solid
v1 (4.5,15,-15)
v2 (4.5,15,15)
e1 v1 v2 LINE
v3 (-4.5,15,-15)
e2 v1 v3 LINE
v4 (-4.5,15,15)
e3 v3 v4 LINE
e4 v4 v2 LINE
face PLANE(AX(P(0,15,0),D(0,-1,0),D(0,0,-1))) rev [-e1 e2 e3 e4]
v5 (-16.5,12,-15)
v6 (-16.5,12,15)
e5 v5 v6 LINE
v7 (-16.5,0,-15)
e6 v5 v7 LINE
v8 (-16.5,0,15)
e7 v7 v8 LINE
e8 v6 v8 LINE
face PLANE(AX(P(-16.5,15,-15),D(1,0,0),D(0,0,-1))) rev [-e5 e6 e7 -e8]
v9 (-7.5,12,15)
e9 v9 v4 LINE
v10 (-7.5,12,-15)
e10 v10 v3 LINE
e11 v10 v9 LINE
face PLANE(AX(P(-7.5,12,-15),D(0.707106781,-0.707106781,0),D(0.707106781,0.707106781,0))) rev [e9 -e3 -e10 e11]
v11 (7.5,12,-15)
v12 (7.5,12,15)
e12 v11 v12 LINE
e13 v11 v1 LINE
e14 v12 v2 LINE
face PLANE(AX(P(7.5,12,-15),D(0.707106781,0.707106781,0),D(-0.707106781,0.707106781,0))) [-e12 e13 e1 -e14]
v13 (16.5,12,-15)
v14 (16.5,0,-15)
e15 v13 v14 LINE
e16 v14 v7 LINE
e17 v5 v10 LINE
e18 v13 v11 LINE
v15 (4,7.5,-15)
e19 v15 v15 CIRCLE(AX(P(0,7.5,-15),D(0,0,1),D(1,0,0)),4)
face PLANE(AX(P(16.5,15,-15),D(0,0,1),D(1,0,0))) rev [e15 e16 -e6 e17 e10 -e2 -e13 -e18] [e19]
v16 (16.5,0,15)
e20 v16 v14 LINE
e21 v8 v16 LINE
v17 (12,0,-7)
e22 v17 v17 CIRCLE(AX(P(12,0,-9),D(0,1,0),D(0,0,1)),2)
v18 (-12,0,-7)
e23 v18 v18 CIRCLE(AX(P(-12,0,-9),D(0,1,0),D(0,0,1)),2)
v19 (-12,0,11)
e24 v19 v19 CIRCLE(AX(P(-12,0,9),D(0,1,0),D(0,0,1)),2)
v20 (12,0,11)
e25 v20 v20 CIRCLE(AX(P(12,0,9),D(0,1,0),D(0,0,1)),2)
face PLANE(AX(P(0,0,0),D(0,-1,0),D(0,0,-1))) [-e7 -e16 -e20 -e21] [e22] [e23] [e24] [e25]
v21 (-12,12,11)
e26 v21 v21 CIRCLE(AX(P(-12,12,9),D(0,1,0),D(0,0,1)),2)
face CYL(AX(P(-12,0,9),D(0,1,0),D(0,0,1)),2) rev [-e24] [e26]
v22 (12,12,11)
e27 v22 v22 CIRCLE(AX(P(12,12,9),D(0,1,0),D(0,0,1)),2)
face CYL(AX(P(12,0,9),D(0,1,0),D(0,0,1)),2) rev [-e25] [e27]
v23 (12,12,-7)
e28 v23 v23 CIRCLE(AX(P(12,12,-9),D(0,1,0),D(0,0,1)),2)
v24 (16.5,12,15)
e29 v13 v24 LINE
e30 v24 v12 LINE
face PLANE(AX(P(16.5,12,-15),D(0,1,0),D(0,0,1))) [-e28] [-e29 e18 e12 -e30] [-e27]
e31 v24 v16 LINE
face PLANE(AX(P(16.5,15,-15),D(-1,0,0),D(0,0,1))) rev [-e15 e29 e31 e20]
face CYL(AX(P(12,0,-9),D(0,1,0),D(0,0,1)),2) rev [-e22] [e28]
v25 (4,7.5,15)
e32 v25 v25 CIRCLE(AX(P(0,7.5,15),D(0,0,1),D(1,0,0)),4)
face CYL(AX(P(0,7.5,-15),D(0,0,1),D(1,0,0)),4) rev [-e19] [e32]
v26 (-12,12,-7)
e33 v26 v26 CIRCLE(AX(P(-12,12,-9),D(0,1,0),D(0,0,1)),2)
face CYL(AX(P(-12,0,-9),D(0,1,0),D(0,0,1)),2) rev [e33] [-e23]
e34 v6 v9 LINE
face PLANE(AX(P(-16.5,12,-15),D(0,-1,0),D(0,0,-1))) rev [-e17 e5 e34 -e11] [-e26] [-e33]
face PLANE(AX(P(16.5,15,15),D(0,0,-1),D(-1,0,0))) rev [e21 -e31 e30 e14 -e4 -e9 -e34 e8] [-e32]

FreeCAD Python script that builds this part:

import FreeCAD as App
import Part
import Sketcher

V = App.Vector
Q = App.Units.Quantity


def add_polygon(sketch, points):
    """Adds a closed chain of lines whose ends are joined by coincident constraints."""
    first, n = sketch.GeometryCount, len(points)
    for a, b in zip(points, points[1:] + points[:1]):
        sketch.addGeometry(Part.LineSegment(App.Vector(*a, 0), App.Vector(*b, 0)), False)
    for i in range(n):
        sketch.addConstraint(Sketcher.Constraint("Coincident", first + i, 2, first + (i + 1) % n, 1))

doc = App.newDocument("Part")
params = doc.addObject("Spreadsheet::Sheet", "Params")
for row, (alias, value) in enumerate([
    ("sketch1_width", "33 mm"),
    ("sketch1_height", "30 mm"),
    ("pad1_length", "15 mm"),
    ("sketch2_diameter", "8 mm"),
    ("sketch3_width", "9 mm"),
    ("sketch3_width2", "12 mm"),
    ("sketch3_height", "3 mm"),
    ("sketch4_diameter", "4 mm"),
], start=1):
    params.set(f"A{row}", alias)
    params.set(f"B{row}", "=" + value)
    params.setAlias(f"B{row}", alias)

body = doc.addObject("PartDesign::Body", "Body")

# Sketch on XZ plane
sketch1 = body.newObject("Sketcher::SketchObject", "Sketch")
sketch1.AttachmentSupport = (doc.getObject("XZ_Plane"), [""])
sketch1.MapMode = "FlatFace"
add_polygon(sketch1, [(-16.5, -15), (-16.5, 15), (16.5, 15), (16.5, -15)])  # lines 0-3
sketch1.addConstraint([
    Sketcher.Constraint("Vertical", 0),
    Sketcher.Constraint("Horizontal", 1),
    Sketcher.Constraint("Vertical", 2),
    Sketcher.Constraint("Horizontal", 3),
    Sketcher.Constraint("Symmetric", 0, 2, 2, 2, -1, 1),
    Sketcher.Constraint("DistanceX", 1, 1, 1, 2, Q("33 mm")),
    Sketcher.Constraint("DistanceY", 0, 1, 0, 2, Q("30 mm")),
])
sketch1.setExpression("Constraints[9]", "Params.sketch1_width")
sketch1.setExpression("Constraints[10]", "Params.sketch1_height")
pad1 = body.newObject("PartDesign::Pad", "Pad")
pad1.Profile = sketch1
pad1.setExpression("Length", "Params.pad1_length")
pad1.Reversed = True

# Sketch on XY plane
sketch2 = body.newObject("Sketcher::SketchObject", "Sketch001")
sketch2.AttachmentSupport = (doc.getObject("XY_Plane"), [""])
sketch2.MapMode = "FlatFace"
sketch2.AttachmentOffset = App.Placement(V(0, 0, 15), App.Rotation())
sketch2.addGeometry(Part.Circle(V(0, 7.5, 0), V(0, 0, 1), 4), False)
sketch2.addConstraint([
    Sketcher.Constraint("PointOnObject", 0, 3, -2),
    Sketcher.Constraint("Diameter", 0, Q("8 mm")),
    Sketcher.Constraint("DistanceY", -1, 1, 0, 3, Q("7.5 mm")),
])
sketch2.setExpression("Constraints[1]", "Params.sketch2_diameter")
pocket1 = body.newObject("PartDesign::Pocket", "Pocket")
pocket1.Profile = sketch2
pocket1.Type = "ThroughAll"

# Sketch on XY plane
sketch3 = body.newObject("Sketcher::SketchObject", "Sketch002")
sketch3.AttachmentSupport = (doc.getObject("XY_Plane"), [""])
sketch3.MapMode = "FlatFace"
sketch3.AttachmentOffset = App.Placement(V(0, 0, 15), App.Rotation())
add_polygon(sketch3, [(-16.5, 15), (-16.5, 12), (-7.5, 12), (-4.5, 15)])  # lines 0-3
sketch3.addConstraint([
    Sketcher.Constraint("Vertical", 0),
    Sketcher.Constraint("Horizontal", 1),
    Sketcher.Constraint("Horizontal", 3),
    Sketcher.Constraint("DistanceX", 1, 1, 1, 2, Q("9 mm")),
    Sketcher.Constraint("DistanceX", 3, 2, 3, 1, Q("12 mm")),
    Sketcher.Constraint("DistanceY", 0, 2, 0, 1, Q("3 mm")),
    Sketcher.Constraint("DistanceY", -1, 1, 0, 2, Q("12 mm")),
    Sketcher.Constraint("DistanceX", 0, 2, -1, 1, Q("16.5 mm")),
])
sketch3.setExpression("Constraints[7]", "Params.sketch3_width")
sketch3.setExpression("Constraints[8]", "Params.sketch3_width2")
sketch3.setExpression("Constraints[9]", "Params.sketch3_height")
pocket2 = body.newObject("PartDesign::Pocket", "Pocket001")
pocket2.Profile = sketch3
pocket2.Type = "ThroughAll"
doc.recompute()

mirrored = body.newObject("PartDesign::Mirrored", "Mirrored")
mirrored.Originals = [pocket2]
mirrored.MirrorPlane = (doc.getObject("YZ_Plane"), [""])
body.Tip = mirrored

# Sketch on XZ plane
sketch4 = body.newObject("Sketcher::SketchObject", "Sketch003")
sketch4.AttachmentSupport = (doc.getObject("XZ_Plane"), [""])
sketch4.MapMode = "FlatFace"
sketch4.AttachmentOffset = App.Placement(V(0, 0, -12), App.Rotation())
sketch4.addGeometry([
    Part.Circle(V(-12, -9, 0), V(0, 0, 1), 2),
    Part.Circle(V(12, -9, 0), V(0, 0, 1), 2),
    Part.Circle(V(-12, 9, 0), V(0, 0, 1), 2),
    Part.Circle(V(12, 9, 0), V(0, 0, 1), 2),
], False)
sketch4.addConstraint([
    Sketcher.Constraint("Equal", 0, 1),
    Sketcher.Constraint("Equal", 1, 2),
    Sketcher.Constraint("Equal", 2, 3),
    Sketcher.Constraint("Symmetric", 1, 3, 2, 3, -1, 1),
    Sketcher.Constraint("Symmetric", 0, 3, 3, 3, -1, 1),
    Sketcher.Constraint("Symmetric", 0, 3, 1, 3, -2),
    Sketcher.Constraint("Diameter", 0, Q("4 mm")),
    Sketcher.Constraint("DistanceX", 0, 3, -1, 1, Q("12 mm")),
    Sketcher.Constraint("DistanceY", 0, 3, -1, 1, Q("9 mm")),
])
sketch4.setExpression("Constraints[6]", "Params.sketch4_diameter")
pocket3 = body.newObject("PartDesign::Pocket", "Pocket002")
pocket3.Profile = sketch4
pocket3.Type = "ThroughAll"
pocket3.Reversed = True

doc.recompute()
